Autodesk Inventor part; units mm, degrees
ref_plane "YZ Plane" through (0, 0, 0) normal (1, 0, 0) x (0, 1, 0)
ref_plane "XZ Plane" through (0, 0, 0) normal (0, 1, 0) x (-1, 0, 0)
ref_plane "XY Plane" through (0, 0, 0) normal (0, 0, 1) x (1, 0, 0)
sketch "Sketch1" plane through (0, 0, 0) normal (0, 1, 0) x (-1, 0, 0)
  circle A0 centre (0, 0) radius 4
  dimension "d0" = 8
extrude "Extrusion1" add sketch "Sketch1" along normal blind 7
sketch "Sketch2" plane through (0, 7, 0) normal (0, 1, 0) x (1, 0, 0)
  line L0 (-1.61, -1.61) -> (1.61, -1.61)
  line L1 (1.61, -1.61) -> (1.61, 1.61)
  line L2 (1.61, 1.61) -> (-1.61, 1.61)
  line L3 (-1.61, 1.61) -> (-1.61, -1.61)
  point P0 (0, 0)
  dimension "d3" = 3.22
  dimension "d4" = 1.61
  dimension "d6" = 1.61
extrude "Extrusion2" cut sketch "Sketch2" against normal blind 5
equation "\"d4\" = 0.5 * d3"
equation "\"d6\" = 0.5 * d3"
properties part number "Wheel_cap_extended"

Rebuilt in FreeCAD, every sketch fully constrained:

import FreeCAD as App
import Part
import Sketcher
from FreeCAD import Vector


def add_polygon(sketch, points):
    """Adds a closed chain of lines whose ends are joined by coincident constraints."""
    first, n = sketch.GeometryCount, len(points)
    for a, b in zip(points, points[1:] + points[:1]):
        sketch.addGeometry(Part.LineSegment(App.Vector(*a, 0), App.Vector(*b, 0)), False)
    for i in range(n):
        sketch.addConstraint(Sketcher.Constraint("Coincident", first + i, 2, first + (i + 1) % n, 1))

doc = App.newDocument("Part")
body = doc.addObject("PartDesign::Body", "Body")

# Sketch on XZ plane
sketch1 = doc.addObject("Sketcher::SketchObject", "Sketch")
body.addObject(sketch1)
sketch1.AttachmentSupport = (doc.XZ_Plane, [""])
sketch1.MapMode = "FlatFace"
sketch1.addGeometry(Part.Circle(Vector(0, 0, 0), Vector(0, 0, 1), 4), False)
sketch1.addConstraint([
    Sketcher.Constraint("Coincident", 0, 3, -1, 1),
    Sketcher.Constraint("Diameter", 0, 8.0),
])
pad1 = doc.addObject("PartDesign::Pad", "Pad")
body.addObject(pad1)
pad1.Profile = sketch1
pad1.Length = 7
pad1.Reversed = True

# Sketch on XZ plane
sketch2 = doc.addObject("Sketcher::SketchObject", "Sketch001")
body.addObject(sketch2)
sketch2.AttachmentSupport = (doc.XZ_Plane, [""])
sketch2.MapMode = "FlatFace"
sketch2.AttachmentOffset = App.Placement(Vector(0, 0, -7), App.Rotation())
add_polygon(sketch2, [(-1.61, -1.61), (-1.61, 1.61), (1.61, 1.61), (1.61, -1.61)])  # lines 0-3
sketch2.addConstraint([
    Sketcher.Constraint("Vertical", 0),
    Sketcher.Constraint("Horizontal", 1),
    Sketcher.Constraint("Vertical", 2),
    Sketcher.Constraint("Horizontal", 3),
    Sketcher.Constraint("Symmetric", 0, 2, 2, 2, -1, 1),
    Sketcher.Constraint("Equal", 3, 0),
    Sketcher.Constraint("DistanceX", 1, 1, 1, 2, 3.22),
])
pocket1 = doc.addObject("PartDesign::Pocket", "Pocket")
body.addObject(pocket1)
pocket1.Profile = sketch2
pocket1.Length = 5
pocket1.Reversed = True

doc.recompute()
